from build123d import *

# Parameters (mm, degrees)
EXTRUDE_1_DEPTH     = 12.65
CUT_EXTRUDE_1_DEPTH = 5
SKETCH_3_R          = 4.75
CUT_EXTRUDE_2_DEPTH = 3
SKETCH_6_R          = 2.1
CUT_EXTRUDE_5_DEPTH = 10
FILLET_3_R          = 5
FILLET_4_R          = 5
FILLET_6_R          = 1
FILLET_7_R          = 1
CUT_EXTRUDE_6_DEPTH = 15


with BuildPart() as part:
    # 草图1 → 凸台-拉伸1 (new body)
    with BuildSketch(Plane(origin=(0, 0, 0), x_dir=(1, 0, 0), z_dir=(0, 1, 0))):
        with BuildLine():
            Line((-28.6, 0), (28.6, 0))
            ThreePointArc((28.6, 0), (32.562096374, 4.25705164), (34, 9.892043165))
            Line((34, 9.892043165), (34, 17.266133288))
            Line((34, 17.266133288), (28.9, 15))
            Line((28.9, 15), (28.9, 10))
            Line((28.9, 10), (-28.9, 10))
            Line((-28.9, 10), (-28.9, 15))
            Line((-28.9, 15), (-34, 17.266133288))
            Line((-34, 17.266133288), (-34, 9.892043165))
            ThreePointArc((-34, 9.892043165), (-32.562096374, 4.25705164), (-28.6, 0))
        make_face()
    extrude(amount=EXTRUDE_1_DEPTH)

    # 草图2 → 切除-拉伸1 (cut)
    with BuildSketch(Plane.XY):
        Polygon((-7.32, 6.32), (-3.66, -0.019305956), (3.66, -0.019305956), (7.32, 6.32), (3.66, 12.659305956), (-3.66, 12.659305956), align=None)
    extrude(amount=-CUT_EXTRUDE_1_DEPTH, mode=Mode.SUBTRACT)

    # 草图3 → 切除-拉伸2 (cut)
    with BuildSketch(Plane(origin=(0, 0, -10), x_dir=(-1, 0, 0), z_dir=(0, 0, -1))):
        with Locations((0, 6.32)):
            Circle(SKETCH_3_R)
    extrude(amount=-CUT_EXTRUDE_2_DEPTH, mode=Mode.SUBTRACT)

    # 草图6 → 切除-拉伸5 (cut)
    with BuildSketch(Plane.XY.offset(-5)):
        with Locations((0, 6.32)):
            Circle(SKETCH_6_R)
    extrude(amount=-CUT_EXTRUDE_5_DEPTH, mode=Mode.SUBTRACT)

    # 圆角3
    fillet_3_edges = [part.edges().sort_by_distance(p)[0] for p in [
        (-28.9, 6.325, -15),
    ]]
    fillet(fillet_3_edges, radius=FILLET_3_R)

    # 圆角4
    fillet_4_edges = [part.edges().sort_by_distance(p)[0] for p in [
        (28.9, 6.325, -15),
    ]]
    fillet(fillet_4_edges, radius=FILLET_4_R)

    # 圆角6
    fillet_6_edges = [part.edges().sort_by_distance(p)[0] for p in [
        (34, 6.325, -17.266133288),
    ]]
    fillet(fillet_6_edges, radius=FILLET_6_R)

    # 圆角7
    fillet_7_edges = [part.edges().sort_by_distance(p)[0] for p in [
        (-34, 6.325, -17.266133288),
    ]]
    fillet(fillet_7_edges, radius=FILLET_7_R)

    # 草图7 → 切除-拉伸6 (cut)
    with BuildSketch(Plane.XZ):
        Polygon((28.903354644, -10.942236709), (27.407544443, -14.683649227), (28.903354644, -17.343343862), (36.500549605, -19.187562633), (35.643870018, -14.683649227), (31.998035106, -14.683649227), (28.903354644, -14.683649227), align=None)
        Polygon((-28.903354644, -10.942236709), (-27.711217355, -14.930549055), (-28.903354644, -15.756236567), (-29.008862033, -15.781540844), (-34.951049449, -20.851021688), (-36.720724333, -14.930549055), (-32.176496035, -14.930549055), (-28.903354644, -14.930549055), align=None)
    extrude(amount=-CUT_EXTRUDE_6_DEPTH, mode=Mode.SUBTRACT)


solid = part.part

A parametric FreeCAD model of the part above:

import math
import FreeCAD as App
import Part
import Sketcher
Q = App.Units.Quantity


def edges_at(feature, points):
    """Names of the edges that pass closest to the given points."""
    edges = feature.Shape.Edges
    near = lambda p: min(range(len(edges)), key=lambda i: edges[i].distToShape(Part.Vertex(*p))[0])
    return sorted({f"Edge{near(p) + 1}" for p in points})

doc = App.newDocument("Part")
params = doc.addObject("Spreadsheet::Sheet", "Params")
for row, (alias, value) in enumerate([
    ("sketch1_height", "5 mm"),
    ("sketch1_width", "57.2 mm"),
    ("sketch1_width2", "57.8 mm"),
    ("pad1_length", "12.65 mm"),
    ("sketch2_width", "7.32 mm"),
    ("sketch2_length", "7.32 mm"),
    ("pocket1_length", "5 mm"),
    ("sketch3_diameter", "9.5 mm"),
    ("pocket2_length", "3 mm"),
    ("sketch4_diameter", "4.2 mm"),
    ("pocket3_length", "10 mm"),
    ("fillet_radius", "5 mm"),
    ("fillet2_radius", "5 mm"),
    ("fillet3_radius", "1 mm"),
    ("fillet4_radius", "1 mm"),
    ("pocket4_length", "15 mm"),
], start=1):
    params.set(f"A{row}", alias)
    params.set(f"B{row}", "=" + value)
    params.setAlias(f"B{row}", alias)

body = doc.addObject("PartDesign::Body", "Body")

sketch1 = doc.addObject("Sketcher::SketchObject", "Sketch")
body.addObject(sketch1)
sketch1.AttachmentSupport = (doc.XZ_Plane, [""])
sketch1.MapMode = "FlatFace"
sketch1.addGeometry([
    Part.LineSegment(App.Vector(-28.6, 0, 0), App.Vector(28.6, 0, 0)),
    Part.ArcOfCircle(Part.Circle(App.Vector(22.239582, -9.892043, 0), App.Vector(0, 0, 1), 11.760418), math.radians(0), math.radians(57.25966)),
    Part.LineSegment(App.Vector(34, -9.892043, 0), App.Vector(34, -17.266133, 0)),
    Part.LineSegment(App.Vector(34, -17.266133, 0), App.Vector(28.9, -15, 0)),
    Part.LineSegment(App.Vector(28.9, -15, 0), App.Vector(28.9, -10, 0)),
    Part.LineSegment(App.Vector(28.9, -10, 0), App.Vector(-28.9, -10, 0)),
    Part.LineSegment(App.Vector(-28.9, -10, 0), App.Vector(-28.9, -15, 0)),
    Part.LineSegment(App.Vector(-28.9, -15, 0), App.Vector(-34, -17.266133, 0)),
    Part.LineSegment(App.Vector(-34, -17.266133, 0), App.Vector(-34, -9.892043, 0)),
    Part.ArcOfCircle(Part.Circle(App.Vector(-22.239582, -9.892043, 0), App.Vector(0, 0, 1), 11.760418), math.radians(122.74034), math.radians(180)),
], False)
sketch1.addConstraint([
    Sketcher.Constraint("Coincident", 0, 2, 1, 2),
    Sketcher.Constraint("Tangent", 1, 1, 2, 1),
    Sketcher.Constraint("Coincident", 2, 2, 3, 1),
    Sketcher.Constraint("Coincident", 3, 2, 4, 1),
    Sketcher.Constraint("Coincident", 4, 2, 5, 1),
    Sketcher.Constraint("Coincident", 5, 2, 6, 1),
    Sketcher.Constraint("Coincident", 6, 2, 7, 1),
    Sketcher.Constraint("Coincident", 7, 2, 8, 1),
    Sketcher.Constraint("Tangent", 8, 2, 9, 2),
    Sketcher.Constraint("Coincident", 9, 1, 0, 1),
    Sketcher.Constraint("Horizontal", 0),
    Sketcher.Constraint("Vertical", 2),
    Sketcher.Constraint("Vertical", 4),
    Sketcher.Constraint("Horizontal", 5),
    Sketcher.Constraint("Vertical", 6),
    Sketcher.Constraint("Vertical", 8),
    Sketcher.Constraint("Equal", 1, 9),
    Sketcher.Constraint("Symmetric", 0, 2, 9, 1, -1, 1),
    Sketcher.Constraint("Symmetric", 3, 2, 6, 2, -2),
    Sketcher.Constraint("Symmetric", 2, 2, 7, 2, -2),
    Sketcher.Constraint("DistanceY", 4, 1, 4, 2, Q("5 mm")),
    Sketcher.Constraint("DistanceX", 0, 1, 0, 2, Q("57.2 mm")),
    Sketcher.Constraint("DistanceX", 5, 2, 5, 1, Q("57.8 mm")),
    Sketcher.Constraint("DistanceX", -1, 1, 1, 1, Q("34 mm")),
    Sketcher.Constraint("DistanceY", 3, 2, -1, 1, Q("15 mm")),
    Sketcher.Constraint("Radius", 1, Q("11.760418 mm")),
    Sketcher.Constraint("DistanceY", 2, 2, 2, 1, Q("7.37409 mm")),
])
sketch1.setExpression("Constraints[20]", "Params.sketch1_height")
sketch1.setExpression("Constraints[21]", "Params.sketch1_width")
sketch1.setExpression("Constraints[22]", "Params.sketch1_width2")
pad1 = doc.addObject("PartDesign::Pad", "Pad")
body.addObject(pad1)
pad1.Profile = sketch1
pad1.setExpression("Length", "Params.pad1_length")
pad1.Reversed = True

sketch2 = doc.addObject("Sketcher::SketchObject", "Sketch001")
body.addObject(sketch2)
sketch2.AttachmentSupport = (doc.XY_Plane, [""])
sketch2.MapMode = "FlatFace"
sketch2.addGeometry([
    Part.LineSegment(App.Vector(-7.32, 6.32, 0), App.Vector(-3.66, -0.019306, 0)),
    Part.LineSegment(App.Vector(-3.66, -0.019306, 0), App.Vector(3.66, -0.019306, 0)),
    Part.LineSegment(App.Vector(3.66, -0.019306, 0), App.Vector(7.32, 6.32, 0)),
    Part.LineSegment(App.Vector(7.32, 6.32, 0), App.Vector(3.66, 12.659306, 0)),
    Part.LineSegment(App.Vector(3.66, 12.659306, 0), App.Vector(-3.66, 12.659306, 0)),
    Part.LineSegment(App.Vector(-3.66, 12.659306, 0), App.Vector(-7.32, 6.32, 0)),
], False)
sketch2.addConstraint([
    Sketcher.Constraint("Coincident", 0, 2, 1, 1),
    Sketcher.Constraint("Coincident", 1, 2, 2, 1),
    Sketcher.Constraint("Coincident", 2, 2, 3, 1),
    Sketcher.Constraint("Coincident", 3, 2, 4, 1),
    Sketcher.Constraint("Coincident", 4, 2, 5, 1),
    Sketcher.Constraint("Coincident", 5, 2, 0, 1),
    Sketcher.Constraint("Horizontal", 1),
    Sketcher.Constraint("Horizontal", 4),
    Sketcher.Constraint("Symmetric", 2, 2, 5, 2, -2),
    Sketcher.Constraint("Parallel", 0, 3),
    Sketcher.Constraint("Parallel", 2, 5),
    Sketcher.Constraint("Vertical", 1, 2, 3, 2),
    Sketcher.Constraint("Vertical", 0, 2, 4, 2),
    Sketcher.Constraint("Angle", 0, Q("-60 deg")),
    Sketcher.Constraint("DistanceX", 1, 1, 1, 2, Q("7.32 mm")),
    Sketcher.Constraint("Distance", 0, Q("7.32 mm")),
    Sketcher.Constraint("DistanceY", -1, 1, 2, 2, Q("6.32 mm")),
])
sketch2.setExpression("Constraints[14]", "Params.sketch2_width")
sketch2.setExpression("Constraints[15]", "Params.sketch2_length")
pocket1 = doc.addObject("PartDesign::Pocket", "Pocket")
body.addObject(pocket1)
pocket1.Profile = sketch2
pocket1.setExpression("Length", "Params.pocket1_length")

sketch3 = doc.addObject("Sketcher::SketchObject", "Sketch002")
body.addObject(sketch3)
sketch3.AttachmentSupport = (doc.XY_Plane, [""])
sketch3.MapMode = "FlatFace"
sketch3.AttachmentOffset = App.Placement(App.Vector(0, 0, -10), App.Rotation())
sketch3.addGeometry(Part.Circle(App.Vector(0, 6.32, 0), App.Vector(0, 0, 1), 4.75), False)
sketch3.addConstraint([
    Sketcher.Constraint("PointOnObject", 0, 3, -2),
    Sketcher.Constraint("Diameter", 0, Q("9.5 mm")),
    Sketcher.Constraint("DistanceY", -1, 1, 0, 3, Q("6.32 mm")),
])
sketch3.setExpression("Constraints[1]", "Params.sketch3_diameter")
pocket2 = doc.addObject("PartDesign::Pocket", "Pocket001")
body.addObject(pocket2)
pocket2.Profile = sketch3
pocket2.setExpression("Length", "Params.pocket2_length")
pocket2.Reversed = True

sketch4 = doc.addObject("Sketcher::SketchObject", "Sketch003")
body.addObject(sketch4)
sketch4.AttachmentSupport = (doc.XY_Plane, [""])
sketch4.MapMode = "FlatFace"
sketch4.AttachmentOffset = App.Placement(App.Vector(0, 0, -5), App.Rotation())
sketch4.addGeometry(Part.Circle(App.Vector(0, 6.32, 0), App.Vector(0, 0, 1), 2.1), False)
sketch4.addConstraint([
    Sketcher.Constraint("PointOnObject", 0, 3, -2),
    Sketcher.Constraint("Diameter", 0, Q("4.2 mm")),
    Sketcher.Constraint("DistanceY", -1, 1, 0, 3, Q("6.32 mm")),
])
sketch4.setExpression("Constraints[1]", "Params.sketch4_diameter")
pocket3 = doc.addObject("PartDesign::Pocket", "Pocket002")
body.addObject(pocket3)
pocket3.Profile = sketch4
pocket3.setExpression("Length", "Params.pocket3_length")
doc.recompute()

fillet = doc.addObject("PartDesign::Fillet", "Fillet")
body.addObject(fillet)
fillet.Base = (pocket3, edges_at(pocket3, [(-28.9, 6.325, -15)]))
fillet.setExpression("Radius", "Params.fillet_radius")
doc.recompute()

fillet2 = doc.addObject("PartDesign::Fillet", "Fillet001")
body.addObject(fillet2)
fillet2.Base = (fillet, edges_at(fillet, [(28.9, 6.325, -15)]))
fillet2.setExpression("Radius", "Params.fillet2_radius")
doc.recompute()

fillet3 = doc.addObject("PartDesign::Fillet", "Fillet002")
body.addObject(fillet3)
fillet3.Base = (fillet2, edges_at(fillet2, [(34, 6.325, -17.266)]))
fillet3.setExpression("Radius", "Params.fillet3_radius")
doc.recompute()

fillet4 = doc.addObject("PartDesign::Fillet", "Fillet003")
body.addObject(fillet4)
fillet4.Base = (fillet3, edges_at(fillet3, [(-34, 6.325, -17.266)]))
fillet4.setExpression("Radius", "Params.fillet4_radius")

sketch5 = doc.addObject("Sketcher::SketchObject", "Sketch004")
body.addObject(sketch5)
sketch5.AttachmentSupport = (doc.XZ_Plane, [""])
sketch5.MapMode = "FlatFace"
sketch5.addGeometry([
    Part.LineSegment(App.Vector(28.903355, -10.942237, 0), App.Vector(27.407544, -14.683649, 0)),
    Part.LineSegment(App.Vector(27.407544, -14.683649, 0), App.Vector(28.903355, -17.343344, 0)),
    Part.LineSegment(App.Vector(28.903355, -17.343344, 0), App.Vector(36.50055, -19.187563, 0)),
    Part.LineSegment(App.Vector(36.50055, -19.187563, 0), App.Vector(35.64387, -14.683649, 0)),
    Part.LineSegment(App.Vector(35.64387, -14.683649, 0), App.Vector(28.903355, -14.683649, 0)),
    Part.LineSegment(App.Vector(28.903355, -14.683649, 0), App.Vector(28.903355, -10.942237, 0)),
    Part.LineSegment(App.Vector(-27.711217, -14.930549, 0), App.Vector(-28.903355, -10.942237, 0)),
    Part.LineSegment(App.Vector(-28.903355, -10.942237, 0), App.Vector(-28.903355, -14.930549, 0)),
    Part.LineSegment(App.Vector(-28.903355, -14.930549, 0), App.Vector(-36.720724, -14.930549, 0)),
    Part.LineSegment(App.Vector(-36.720724, -14.930549, 0), App.Vector(-34.951049, -20.851022, 0)),
    Part.LineSegment(App.Vector(-34.951049, -20.851022, 0), App.Vector(-29.008862, -15.781541, 0)),
    Part.LineSegment(App.Vector(-29.008862, -15.781541, 0), App.Vector(-28.903355, -15.756237, 0)),
    Part.LineSegment(App.Vector(-28.903355, -15.756237, 0), App.Vector(-27.711217, -14.930549, 0)),
], False)
sketch5.addConstraint([
    Sketcher.Constraint("Coincident", 0, 2, 1, 1),
    Sketcher.Constraint("Coincident", 1, 2, 2, 1),
    Sketcher.Constraint("Coincident", 2, 2, 3, 1),
    Sketcher.Constraint("Coincident", 3, 2, 4, 1),
    Sketcher.Constraint("Coincident", 4, 2, 5, 1),
    Sketcher.Constraint("Coincident", 5, 2, 0, 1),
    Sketcher.Constraint("Coincident", 6, 2, 7, 1),
    Sketcher.Constraint("Coincident", 7, 2, 8, 1),
    Sketcher.Constraint("Coincident", 8, 2, 9, 1),
    Sketcher.Constraint("Coincident", 9, 2, 10, 1),
    Sketcher.Constraint("Coincident", 10, 2, 11, 1),
    Sketcher.Constraint("Coincident", 11, 2, 12, 1),
    Sketcher.Constraint("Coincident", 12, 2, 6, 1),
    Sketcher.Constraint("Horizontal", 4),
    Sketcher.Constraint("Vertical", 5),
    Sketcher.Constraint("Vertical", 7),
    Sketcher.Constraint("Horizontal", 8),
    Sketcher.Constraint("Symmetric", 5, 2, 6, 2, -2),
    Sketcher.Constraint("Parallel", 6, 9),
    Sketcher.Constraint("Horizontal", 0, 2, 3, 2),
    Sketcher.Constraint("Horizontal", 8, 2, 12, 2),
    Sketcher.Constraint("Vertical", 1, 2, 4, 2),
    Sketcher.Constraint("Vertical", 7, 2, 11, 2),
    Sketcher.Constraint("DistanceY", 11, 2, 6, 2, Q("4.814 mm")),
    Sketcher.Constraint("Distance", 9, Q("6.1793 mm")),
    Sketcher.Constraint("Distance", 11, Q("0.108499 mm")),
    Sketcher.Constraint("DistanceX", 8, 2, 8, 1, Q("7.81737 mm")),
    Sketcher.Constraint("DistanceX", 6, 2, 0, 2, Q("56.310899 mm")),
    Sketcher.Constraint("DistanceY", 7, 2, 0, 2, Q("0.2469 mm")),
    Sketcher.Constraint("Distance", 6, Q("4.162671 mm")),
    Sketcher.Constraint("Distance", 10, Q("7.81084 mm")),
    Sketcher.Constraint("DistanceX", 4, 2, 4, 1, Q("6.740515 mm")),
    Sketcher.Constraint("DistanceY", 5, 1, 5, 2, Q("3.741413 mm")),
    Sketcher.Constraint("DistanceY", 0, 2, -1, 1, Q("14.683649 mm")),
    Sketcher.Constraint("DistanceX", -1, 1, 2, 2, Q("36.50055 mm")),
    Sketcher.Constraint("DistanceX", -1, 1, 3, 2, Q("35.64387 mm")),
    Sketcher.Constraint("DistanceY", 2, 2, 1, 2, Q("1.844219 mm")),
    Sketcher.Constraint("Distance", 1, Q("3.051463 mm")),
])
pocket4 = doc.addObject("PartDesign::Pocket", "Pocket003")
body.addObject(pocket4)
pocket4.Profile = sketch5
pocket4.setExpression("Length", "Params.pocket4_length")

doc.recompute()
